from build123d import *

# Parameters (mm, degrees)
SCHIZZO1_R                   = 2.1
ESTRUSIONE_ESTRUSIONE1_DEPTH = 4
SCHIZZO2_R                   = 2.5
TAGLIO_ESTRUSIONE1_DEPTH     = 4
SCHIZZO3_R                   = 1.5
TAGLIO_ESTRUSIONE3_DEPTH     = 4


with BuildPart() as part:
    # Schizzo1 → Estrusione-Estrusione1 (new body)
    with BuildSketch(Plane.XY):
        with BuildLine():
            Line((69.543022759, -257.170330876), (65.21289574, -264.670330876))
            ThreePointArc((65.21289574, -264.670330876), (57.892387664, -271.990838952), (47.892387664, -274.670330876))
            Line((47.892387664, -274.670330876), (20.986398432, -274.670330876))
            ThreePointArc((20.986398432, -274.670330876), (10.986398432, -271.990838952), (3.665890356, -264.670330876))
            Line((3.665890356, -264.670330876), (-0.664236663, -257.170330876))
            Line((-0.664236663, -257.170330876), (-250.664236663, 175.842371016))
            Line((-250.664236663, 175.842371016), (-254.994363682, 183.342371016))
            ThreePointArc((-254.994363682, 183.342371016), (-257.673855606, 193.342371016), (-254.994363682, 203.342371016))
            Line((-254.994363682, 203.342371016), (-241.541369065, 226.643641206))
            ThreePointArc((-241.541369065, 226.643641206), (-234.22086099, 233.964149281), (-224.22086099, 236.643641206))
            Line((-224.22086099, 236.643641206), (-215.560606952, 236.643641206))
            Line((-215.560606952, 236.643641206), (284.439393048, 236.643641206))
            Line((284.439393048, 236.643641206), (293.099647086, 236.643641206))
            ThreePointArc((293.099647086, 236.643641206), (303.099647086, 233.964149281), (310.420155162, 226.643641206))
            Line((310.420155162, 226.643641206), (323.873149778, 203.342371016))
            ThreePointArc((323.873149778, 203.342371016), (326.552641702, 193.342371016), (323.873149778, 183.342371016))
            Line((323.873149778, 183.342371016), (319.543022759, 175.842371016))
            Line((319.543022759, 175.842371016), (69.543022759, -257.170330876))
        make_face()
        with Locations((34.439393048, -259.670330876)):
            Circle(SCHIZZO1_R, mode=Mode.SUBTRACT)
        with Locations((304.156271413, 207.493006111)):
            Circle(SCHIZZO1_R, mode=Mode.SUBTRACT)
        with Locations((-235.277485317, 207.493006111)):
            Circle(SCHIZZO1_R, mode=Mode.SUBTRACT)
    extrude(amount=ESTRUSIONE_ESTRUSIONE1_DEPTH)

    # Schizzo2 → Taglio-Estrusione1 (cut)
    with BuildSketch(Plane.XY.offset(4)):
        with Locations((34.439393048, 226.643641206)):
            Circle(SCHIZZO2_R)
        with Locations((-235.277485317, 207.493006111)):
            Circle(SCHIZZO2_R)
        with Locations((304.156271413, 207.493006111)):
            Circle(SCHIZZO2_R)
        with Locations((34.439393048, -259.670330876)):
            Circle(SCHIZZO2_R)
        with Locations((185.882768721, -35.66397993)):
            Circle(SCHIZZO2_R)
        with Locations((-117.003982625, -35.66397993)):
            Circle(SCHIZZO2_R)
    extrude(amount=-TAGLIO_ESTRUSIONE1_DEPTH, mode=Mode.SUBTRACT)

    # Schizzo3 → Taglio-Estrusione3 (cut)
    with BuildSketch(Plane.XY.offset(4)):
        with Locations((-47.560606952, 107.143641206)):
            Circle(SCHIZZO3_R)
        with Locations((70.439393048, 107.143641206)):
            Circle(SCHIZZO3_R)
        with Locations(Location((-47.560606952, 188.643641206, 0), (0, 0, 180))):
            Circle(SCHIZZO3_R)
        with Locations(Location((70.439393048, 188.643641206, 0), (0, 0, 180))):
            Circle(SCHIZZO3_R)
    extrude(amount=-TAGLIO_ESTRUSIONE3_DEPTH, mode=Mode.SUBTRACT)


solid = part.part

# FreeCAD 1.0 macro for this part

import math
import FreeCAD as App
import Part
import Sketcher
Q = App.Units.Quantity

doc = App.newDocument("Part")
body = doc.addObject("PartDesign::Body", "Body")

sketch1 = doc.addObject("Sketcher::SketchObject", "Sketch")
body.addObject(sketch1)
sketch1.AttachmentSupport = (doc.XY_Plane, [""])
sketch1.MapMode = "FlatFace"
sketch1.addGeometry(Part.LineSegment(App.Vector(65.2, -264.7, 0), App.Vector(69.5, -257.2, 0)), False)
sketch1.addGeometry(Part.LineSegment(App.Vector(69.5, -257.2, 0), App.Vector(319.5, 175.8, 0)), False)
sketch1.addGeometry(Part.LineSegment(App.Vector(319.5, 175.8, 0), App.Vector(323.9, 183.3, 0)), False)
sketch1.addGeometry(Part.ArcOfCircle(Part.Circle(App.Vector(306.6, 193.3, 0), App.Vector(0, 0, 1), 20), math.radians(-30), math.radians(30)), False)
sketch1.addGeometry(Part.LineSegment(App.Vector(323.9, 203.3, 0), App.Vector(310.4, 226.6, 0)), False)
sketch1.addGeometry(Part.ArcOfCircle(Part.Circle(App.Vector(293.1, 216.6, 0), App.Vector(0, 0, 1), 20), math.radians(30), math.radians(90)), False)
sketch1.addGeometry(Part.LineSegment(App.Vector(293.1, 236.6, 0), App.Vector(-224.2, 236.6, 0)), False)
sketch1.addGeometry(Part.ArcOfCircle(Part.Circle(App.Vector(-224.2, 216.6, 0), App.Vector(0, 0, 1), 20), math.radians(90), math.radians(150)), False)
sketch1.addGeometry(Part.LineSegment(App.Vector(-241.5, 226.6, 0), App.Vector(-255, 203.3, 0)), False)
sketch1.addGeometry(Part.ArcOfCircle(Part.Circle(App.Vector(-237.7, 193.3, 0), App.Vector(0, 0, 1), 20), math.radians(150), math.radians(210)), False)
sketch1.addGeometry(Part.LineSegment(App.Vector(-255, 183.3, 0), App.Vector(-250.7, 175.8, 0)), False)
sketch1.addGeometry(Part.LineSegment(App.Vector(-250.7, 175.8, 0), App.Vector(-0.7, -257.2, 0)), False)
sketch1.addGeometry(Part.LineSegment(App.Vector(-0.7, -257.2, 0), App.Vector(3.7, -264.7, 0)), False)
sketch1.addGeometry(Part.ArcOfCircle(Part.Circle(App.Vector(21, -254.7, 0), App.Vector(0, 0, 1), 20), math.radians(-150), math.radians(-90)), False)
sketch1.addGeometry(Part.LineSegment(App.Vector(21, -274.7, 0), App.Vector(47.9, -274.7, 0)), False)
sketch1.addGeometry(Part.ArcOfCircle(Part.Circle(App.Vector(47.9, -254.7, 0), App.Vector(0, 0, 1), 20), math.radians(-90), math.radians(-30)), False)
sketch1.addGeometry(Part.Circle(App.Vector(34.4, -259.7, 0), App.Vector(0, 0, 1), 2.1), False)
sketch1.addGeometry(Part.Circle(App.Vector(304.2, 207.5, 0), App.Vector(0, 0, 1), 2.1), False)
sketch1.addGeometry(Part.Circle(App.Vector(-235.3, 207.5, 0), App.Vector(0, 0, 1), 2.1), False)
sketch1.addConstraint(Sketcher.Constraint("Coincident", 0, 2, 1, 1))
sketch1.addConstraint(Sketcher.Constraint("Coincident", 1, 2, 2, 1))
sketch1.addConstraint(Sketcher.Constraint("Tangent", 2, 2, 3, 1))
sketch1.addConstraint(Sketcher.Constraint("Tangent", 3, 2, 4, 1))
sketch1.addConstraint(Sketcher.Constraint("Tangent", 4, 2, 5, 1))
sketch1.addConstraint(Sketcher.Constraint("Tangent", 5, 2, 6, 1))
sketch1.addConstraint(Sketcher.Constraint("Tangent", 6, 2, 7, 1))
sketch1.addConstraint(Sketcher.Constraint("Tangent", 7, 2, 8, 1))
sketch1.addConstraint(Sketcher.Constraint("Tangent", 8, 2, 9, 1))
sketch1.addConstraint(Sketcher.Constraint("Tangent", 9, 2, 10, 1))
sketch1.addConstraint(Sketcher.Constraint("Coincident", 10, 2, 11, 1))
sketch1.addConstraint(Sketcher.Constraint("Coincident", 11, 2, 12, 1))
sketch1.addConstraint(Sketcher.Constraint("Tangent", 12, 2, 13, 1))
sketch1.addConstraint(Sketcher.Constraint("Tangent", 13, 2, 14, 1))
sketch1.addConstraint(Sketcher.Constraint("Tangent", 14, 2, 15, 1))
sketch1.addConstraint(Sketcher.Constraint("Tangent", 15, 2, 0, 1))
sketch1.addConstraint(Sketcher.Constraint("Horizontal", 6))
sketch1.addConstraint(Sketcher.Constraint("Horizontal", 14))
sketch1.addConstraint(Sketcher.Constraint("Equal", 3, 5))
sketch1.addConstraint(Sketcher.Constraint("Equal", 5, 7))
sketch1.addConstraint(Sketcher.Constraint("Equal", 7, 9))
sketch1.addConstraint(Sketcher.Constraint("Equal", 9, 13))
sketch1.addConstraint(Sketcher.Constraint("Equal", 13, 15))
sketch1.addConstraint(Sketcher.Constraint("Equal", 16, 17))
sketch1.addConstraint(Sketcher.Constraint("Equal", 17, 18))
sketch1.addConstraint(Sketcher.Constraint("Parallel", 0, 1))
sketch1.addConstraint(Sketcher.Constraint("Parallel", 1, 2))
sketch1.addConstraint(Sketcher.Constraint("Parallel", 2, 8))
sketch1.addConstraint(Sketcher.Constraint("Parallel", 4, 10))
sketch1.addConstraint(Sketcher.Constraint("Parallel", 10, 11))
sketch1.addConstraint(Sketcher.Constraint("Parallel", 11, 12))
sketch1.addConstraint(Sketcher.Constraint("Horizontal", 3, 3, 9, 3))
sketch1.addConstraint(Sketcher.Constraint("Horizontal", 17, 3, 18, 3))
sketch1.addConstraint(Sketcher.Constraint("Horizontal", 1, 2, 10, 2))
sketch1.addConstraint(Sketcher.Constraint("Horizontal", 0, 2, 11, 2))
sketch1.addConstraint(Sketcher.Constraint("Equal", 0, 2))
sketch1.addConstraint(Sketcher.Constraint("Equal", 4, 8))
sketch1.addConstraint(Sketcher.Constraint("Radius", 3, 20.0))
sketch1.addConstraint(Sketcher.Constraint("Diameter", 16, 4.2))
sketch1.addConstraint(Sketcher.Constraint("Angle", 0, Q("60 deg")))
sketch1.addConstraint(Sketcher.Constraint("Distance", 1, 500.0))
sketch1.addConstraint(Sketcher.Constraint("DistanceY", 16, 3, 13, 3, 5.0))
sketch1.addConstraint(Sketcher.Constraint("DistanceY", 0, 2, 15, 3, 2.5))
sketch1.addConstraint(Sketcher.Constraint("DistanceX", 6, 2, 6, 1, 517.320508))
sketch1.addConstraint(Sketcher.Constraint("DistanceX", 14, 1, 14, 2, 26.905989))
sketch1.addConstraint(Sketcher.Constraint("DistanceX", -1, 1, 13, 3, 20.986398))
sketch1.addConstraint(Sketcher.Constraint("DistanceY", -1, 1, 3, 3, 193.342371))
sketch1.addConstraint(Sketcher.Constraint("DistanceX", -1, 1, 17, 3, 304.156271))
sketch1.addConstraint(Sketcher.Constraint("DistanceX", 16, 3, 3, 3, 272.113249))
sketch1.addConstraint(Sketcher.Constraint("DistanceX", 9, 3, 18, 3, 2.39637))
sketch1.addConstraint(Sketcher.Constraint("DistanceY", -1, 1, 17, 3, 207.493006))
pad1 = doc.addObject("PartDesign::Pad", "Pad")
body.addObject(pad1)
pad1.Profile = sketch1
pad1.Length = 4

sketch2 = doc.addObject("Sketcher::SketchObject", "Sketch001")
body.addObject(sketch2)
sketch2.AttachmentSupport = (doc.XY_Plane, [""])
sketch2.MapMode = "FlatFace"
sketch2.AttachmentOffset = App.Placement(App.Vector(0, 0, 4), App.Rotation())
sketch2.addGeometry(Part.Circle(App.Vector(34.4, 226.6, 0), App.Vector(0, 0, 1), 2.5), False)
sketch2.addGeometry(Part.Circle(App.Vector(-235.3, 207.5, 0), App.Vector(0, 0, 1), 2.5), False)
sketch2.addGeometry(Part.Circle(App.Vector(304.2, 207.5, 0), App.Vector(0, 0, 1), 2.5), False)
sketch2.addGeometry(Part.Circle(App.Vector(34.4, -259.7, 0), App.Vector(0, 0, 1), 2.5), False)
sketch2.addGeometry(Part.Circle(App.Vector(185.9, -35.7, 0), App.Vector(0, 0, 1), 2.5), False)
sketch2.addGeometry(Part.Circle(App.Vector(-117, -35.7, 0), App.Vector(0, 0, 1), 2.5), False)
sketch2.addConstraint(Sketcher.Constraint("Equal", 0, 1))
sketch2.addConstraint(Sketcher.Constraint("Equal", 1, 2))
sketch2.addConstraint(Sketcher.Constraint("Equal", 2, 3))
sketch2.addConstraint(Sketcher.Constraint("Equal", 3, 4))
sketch2.addConstraint(Sketcher.Constraint("Equal", 4, 5))
sketch2.addConstraint(Sketcher.Constraint("Horizontal", 1, 3, 2, 3))
sketch2.addConstraint(Sketcher.Constraint("Horizontal", 4, 3, 5, 3))
sketch2.addConstraint(Sketcher.Constraint("Vertical", 0, 3, 3, 3))
sketch2.addConstraint(Sketcher.Constraint("Diameter", 0, 5.0))
sketch2.addConstraint(Sketcher.Constraint("DistanceY", -1, 1, 0, 3, 226.643641))
sketch2.addConstraint(Sketcher.Constraint("DistanceX", -1, 1, 2, 3, 304.156271))
sketch2.addConstraint(Sketcher.Constraint("DistanceY", 3, 3, -1, 1, 259.670331))
sketch2.addConstraint(Sketcher.Constraint("DistanceX", -1, 1, 4, 3, 185.882769))
sketch2.addConstraint(Sketcher.Constraint("DistanceY", 4, 3, -1, 1, 35.66398))
sketch2.addConstraint(Sketcher.Constraint("DistanceX", 1, 3, 0, 3, 269.716878))
sketch2.addConstraint(Sketcher.Constraint("DistanceX", 0, 3, 2, 3, 269.716878))
sketch2.addConstraint(Sketcher.Constraint("DistanceX", 5, 3, 4, 3, 302.886751))
sketch2.addConstraint(Sketcher.Constraint("DistanceY", -1, 1, 1, 3, 207.493006))
pocket1 = doc.addObject("PartDesign::Pocket", "Pocket")
body.addObject(pocket1)
pocket1.Profile = sketch2
pocket1.Length = 4

sketch3 = doc.addObject("Sketcher::SketchObject", "Sketch002")
body.addObject(sketch3)
sketch3.AttachmentSupport = (doc.XY_Plane, [""])
sketch3.MapMode = "FlatFace"
sketch3.AttachmentOffset = App.Placement(App.Vector(0, 0, 4), App.Rotation())
sketch3.addGeometry(Part.Circle(App.Vector(-47.6, 107.1, 0), App.Vector(0, 0, 1), 1.5), False)
sketch3.addGeometry(Part.Circle(App.Vector(70.4, 107.1, 0), App.Vector(0, 0, 1), 1.5), False)
sketch3.addGeometry(Part.Circle(App.Vector(-47.6, 188.6, 0), App.Vector(0, 0, 1), 1.5), False)
sketch3.addGeometry(Part.Circle(App.Vector(70.4, 188.6, 0), App.Vector(0, 0, 1), 1.5), False)
sketch3.addConstraint(Sketcher.Constraint("Equal", 0, 1))
sketch3.addConstraint(Sketcher.Constraint("Equal", 1, 2))
sketch3.addConstraint(Sketcher.Constraint("Equal", 2, 3))
sketch3.addConstraint(Sketcher.Constraint("Horizontal", 0, 3, 1, 3))
sketch3.addConstraint(Sketcher.Constraint("Horizontal", 2, 3, 3, 3))
sketch3.addConstraint(Sketcher.Constraint("Vertical", 0, 3, 2, 3))
sketch3.addConstraint(Sketcher.Constraint("Vertical", 1, 3, 3, 3))
sketch3.addConstraint(Sketcher.Constraint("Diameter", 0, 3.0))
sketch3.addConstraint(Sketcher.Constraint("DistanceX", 0, 3, 1, 3, 118.0))
sketch3.addConstraint(Sketcher.Constraint("DistanceY", 0, 3, 2, 3, 81.5))
sketch3.addConstraint(Sketcher.Constraint("DistanceY", -1, 1, 0, 3, 107.143641))
sketch3.addConstraint(Sketcher.Constraint("DistanceX", 0, 3, -1, 1, 47.560607))
pocket2 = doc.addObject("PartDesign::Pocket", "Pocket001")
body.addObject(pocket2)
pocket2.Profile = sketch3
pocket2.Length = 4

doc.recompute()
